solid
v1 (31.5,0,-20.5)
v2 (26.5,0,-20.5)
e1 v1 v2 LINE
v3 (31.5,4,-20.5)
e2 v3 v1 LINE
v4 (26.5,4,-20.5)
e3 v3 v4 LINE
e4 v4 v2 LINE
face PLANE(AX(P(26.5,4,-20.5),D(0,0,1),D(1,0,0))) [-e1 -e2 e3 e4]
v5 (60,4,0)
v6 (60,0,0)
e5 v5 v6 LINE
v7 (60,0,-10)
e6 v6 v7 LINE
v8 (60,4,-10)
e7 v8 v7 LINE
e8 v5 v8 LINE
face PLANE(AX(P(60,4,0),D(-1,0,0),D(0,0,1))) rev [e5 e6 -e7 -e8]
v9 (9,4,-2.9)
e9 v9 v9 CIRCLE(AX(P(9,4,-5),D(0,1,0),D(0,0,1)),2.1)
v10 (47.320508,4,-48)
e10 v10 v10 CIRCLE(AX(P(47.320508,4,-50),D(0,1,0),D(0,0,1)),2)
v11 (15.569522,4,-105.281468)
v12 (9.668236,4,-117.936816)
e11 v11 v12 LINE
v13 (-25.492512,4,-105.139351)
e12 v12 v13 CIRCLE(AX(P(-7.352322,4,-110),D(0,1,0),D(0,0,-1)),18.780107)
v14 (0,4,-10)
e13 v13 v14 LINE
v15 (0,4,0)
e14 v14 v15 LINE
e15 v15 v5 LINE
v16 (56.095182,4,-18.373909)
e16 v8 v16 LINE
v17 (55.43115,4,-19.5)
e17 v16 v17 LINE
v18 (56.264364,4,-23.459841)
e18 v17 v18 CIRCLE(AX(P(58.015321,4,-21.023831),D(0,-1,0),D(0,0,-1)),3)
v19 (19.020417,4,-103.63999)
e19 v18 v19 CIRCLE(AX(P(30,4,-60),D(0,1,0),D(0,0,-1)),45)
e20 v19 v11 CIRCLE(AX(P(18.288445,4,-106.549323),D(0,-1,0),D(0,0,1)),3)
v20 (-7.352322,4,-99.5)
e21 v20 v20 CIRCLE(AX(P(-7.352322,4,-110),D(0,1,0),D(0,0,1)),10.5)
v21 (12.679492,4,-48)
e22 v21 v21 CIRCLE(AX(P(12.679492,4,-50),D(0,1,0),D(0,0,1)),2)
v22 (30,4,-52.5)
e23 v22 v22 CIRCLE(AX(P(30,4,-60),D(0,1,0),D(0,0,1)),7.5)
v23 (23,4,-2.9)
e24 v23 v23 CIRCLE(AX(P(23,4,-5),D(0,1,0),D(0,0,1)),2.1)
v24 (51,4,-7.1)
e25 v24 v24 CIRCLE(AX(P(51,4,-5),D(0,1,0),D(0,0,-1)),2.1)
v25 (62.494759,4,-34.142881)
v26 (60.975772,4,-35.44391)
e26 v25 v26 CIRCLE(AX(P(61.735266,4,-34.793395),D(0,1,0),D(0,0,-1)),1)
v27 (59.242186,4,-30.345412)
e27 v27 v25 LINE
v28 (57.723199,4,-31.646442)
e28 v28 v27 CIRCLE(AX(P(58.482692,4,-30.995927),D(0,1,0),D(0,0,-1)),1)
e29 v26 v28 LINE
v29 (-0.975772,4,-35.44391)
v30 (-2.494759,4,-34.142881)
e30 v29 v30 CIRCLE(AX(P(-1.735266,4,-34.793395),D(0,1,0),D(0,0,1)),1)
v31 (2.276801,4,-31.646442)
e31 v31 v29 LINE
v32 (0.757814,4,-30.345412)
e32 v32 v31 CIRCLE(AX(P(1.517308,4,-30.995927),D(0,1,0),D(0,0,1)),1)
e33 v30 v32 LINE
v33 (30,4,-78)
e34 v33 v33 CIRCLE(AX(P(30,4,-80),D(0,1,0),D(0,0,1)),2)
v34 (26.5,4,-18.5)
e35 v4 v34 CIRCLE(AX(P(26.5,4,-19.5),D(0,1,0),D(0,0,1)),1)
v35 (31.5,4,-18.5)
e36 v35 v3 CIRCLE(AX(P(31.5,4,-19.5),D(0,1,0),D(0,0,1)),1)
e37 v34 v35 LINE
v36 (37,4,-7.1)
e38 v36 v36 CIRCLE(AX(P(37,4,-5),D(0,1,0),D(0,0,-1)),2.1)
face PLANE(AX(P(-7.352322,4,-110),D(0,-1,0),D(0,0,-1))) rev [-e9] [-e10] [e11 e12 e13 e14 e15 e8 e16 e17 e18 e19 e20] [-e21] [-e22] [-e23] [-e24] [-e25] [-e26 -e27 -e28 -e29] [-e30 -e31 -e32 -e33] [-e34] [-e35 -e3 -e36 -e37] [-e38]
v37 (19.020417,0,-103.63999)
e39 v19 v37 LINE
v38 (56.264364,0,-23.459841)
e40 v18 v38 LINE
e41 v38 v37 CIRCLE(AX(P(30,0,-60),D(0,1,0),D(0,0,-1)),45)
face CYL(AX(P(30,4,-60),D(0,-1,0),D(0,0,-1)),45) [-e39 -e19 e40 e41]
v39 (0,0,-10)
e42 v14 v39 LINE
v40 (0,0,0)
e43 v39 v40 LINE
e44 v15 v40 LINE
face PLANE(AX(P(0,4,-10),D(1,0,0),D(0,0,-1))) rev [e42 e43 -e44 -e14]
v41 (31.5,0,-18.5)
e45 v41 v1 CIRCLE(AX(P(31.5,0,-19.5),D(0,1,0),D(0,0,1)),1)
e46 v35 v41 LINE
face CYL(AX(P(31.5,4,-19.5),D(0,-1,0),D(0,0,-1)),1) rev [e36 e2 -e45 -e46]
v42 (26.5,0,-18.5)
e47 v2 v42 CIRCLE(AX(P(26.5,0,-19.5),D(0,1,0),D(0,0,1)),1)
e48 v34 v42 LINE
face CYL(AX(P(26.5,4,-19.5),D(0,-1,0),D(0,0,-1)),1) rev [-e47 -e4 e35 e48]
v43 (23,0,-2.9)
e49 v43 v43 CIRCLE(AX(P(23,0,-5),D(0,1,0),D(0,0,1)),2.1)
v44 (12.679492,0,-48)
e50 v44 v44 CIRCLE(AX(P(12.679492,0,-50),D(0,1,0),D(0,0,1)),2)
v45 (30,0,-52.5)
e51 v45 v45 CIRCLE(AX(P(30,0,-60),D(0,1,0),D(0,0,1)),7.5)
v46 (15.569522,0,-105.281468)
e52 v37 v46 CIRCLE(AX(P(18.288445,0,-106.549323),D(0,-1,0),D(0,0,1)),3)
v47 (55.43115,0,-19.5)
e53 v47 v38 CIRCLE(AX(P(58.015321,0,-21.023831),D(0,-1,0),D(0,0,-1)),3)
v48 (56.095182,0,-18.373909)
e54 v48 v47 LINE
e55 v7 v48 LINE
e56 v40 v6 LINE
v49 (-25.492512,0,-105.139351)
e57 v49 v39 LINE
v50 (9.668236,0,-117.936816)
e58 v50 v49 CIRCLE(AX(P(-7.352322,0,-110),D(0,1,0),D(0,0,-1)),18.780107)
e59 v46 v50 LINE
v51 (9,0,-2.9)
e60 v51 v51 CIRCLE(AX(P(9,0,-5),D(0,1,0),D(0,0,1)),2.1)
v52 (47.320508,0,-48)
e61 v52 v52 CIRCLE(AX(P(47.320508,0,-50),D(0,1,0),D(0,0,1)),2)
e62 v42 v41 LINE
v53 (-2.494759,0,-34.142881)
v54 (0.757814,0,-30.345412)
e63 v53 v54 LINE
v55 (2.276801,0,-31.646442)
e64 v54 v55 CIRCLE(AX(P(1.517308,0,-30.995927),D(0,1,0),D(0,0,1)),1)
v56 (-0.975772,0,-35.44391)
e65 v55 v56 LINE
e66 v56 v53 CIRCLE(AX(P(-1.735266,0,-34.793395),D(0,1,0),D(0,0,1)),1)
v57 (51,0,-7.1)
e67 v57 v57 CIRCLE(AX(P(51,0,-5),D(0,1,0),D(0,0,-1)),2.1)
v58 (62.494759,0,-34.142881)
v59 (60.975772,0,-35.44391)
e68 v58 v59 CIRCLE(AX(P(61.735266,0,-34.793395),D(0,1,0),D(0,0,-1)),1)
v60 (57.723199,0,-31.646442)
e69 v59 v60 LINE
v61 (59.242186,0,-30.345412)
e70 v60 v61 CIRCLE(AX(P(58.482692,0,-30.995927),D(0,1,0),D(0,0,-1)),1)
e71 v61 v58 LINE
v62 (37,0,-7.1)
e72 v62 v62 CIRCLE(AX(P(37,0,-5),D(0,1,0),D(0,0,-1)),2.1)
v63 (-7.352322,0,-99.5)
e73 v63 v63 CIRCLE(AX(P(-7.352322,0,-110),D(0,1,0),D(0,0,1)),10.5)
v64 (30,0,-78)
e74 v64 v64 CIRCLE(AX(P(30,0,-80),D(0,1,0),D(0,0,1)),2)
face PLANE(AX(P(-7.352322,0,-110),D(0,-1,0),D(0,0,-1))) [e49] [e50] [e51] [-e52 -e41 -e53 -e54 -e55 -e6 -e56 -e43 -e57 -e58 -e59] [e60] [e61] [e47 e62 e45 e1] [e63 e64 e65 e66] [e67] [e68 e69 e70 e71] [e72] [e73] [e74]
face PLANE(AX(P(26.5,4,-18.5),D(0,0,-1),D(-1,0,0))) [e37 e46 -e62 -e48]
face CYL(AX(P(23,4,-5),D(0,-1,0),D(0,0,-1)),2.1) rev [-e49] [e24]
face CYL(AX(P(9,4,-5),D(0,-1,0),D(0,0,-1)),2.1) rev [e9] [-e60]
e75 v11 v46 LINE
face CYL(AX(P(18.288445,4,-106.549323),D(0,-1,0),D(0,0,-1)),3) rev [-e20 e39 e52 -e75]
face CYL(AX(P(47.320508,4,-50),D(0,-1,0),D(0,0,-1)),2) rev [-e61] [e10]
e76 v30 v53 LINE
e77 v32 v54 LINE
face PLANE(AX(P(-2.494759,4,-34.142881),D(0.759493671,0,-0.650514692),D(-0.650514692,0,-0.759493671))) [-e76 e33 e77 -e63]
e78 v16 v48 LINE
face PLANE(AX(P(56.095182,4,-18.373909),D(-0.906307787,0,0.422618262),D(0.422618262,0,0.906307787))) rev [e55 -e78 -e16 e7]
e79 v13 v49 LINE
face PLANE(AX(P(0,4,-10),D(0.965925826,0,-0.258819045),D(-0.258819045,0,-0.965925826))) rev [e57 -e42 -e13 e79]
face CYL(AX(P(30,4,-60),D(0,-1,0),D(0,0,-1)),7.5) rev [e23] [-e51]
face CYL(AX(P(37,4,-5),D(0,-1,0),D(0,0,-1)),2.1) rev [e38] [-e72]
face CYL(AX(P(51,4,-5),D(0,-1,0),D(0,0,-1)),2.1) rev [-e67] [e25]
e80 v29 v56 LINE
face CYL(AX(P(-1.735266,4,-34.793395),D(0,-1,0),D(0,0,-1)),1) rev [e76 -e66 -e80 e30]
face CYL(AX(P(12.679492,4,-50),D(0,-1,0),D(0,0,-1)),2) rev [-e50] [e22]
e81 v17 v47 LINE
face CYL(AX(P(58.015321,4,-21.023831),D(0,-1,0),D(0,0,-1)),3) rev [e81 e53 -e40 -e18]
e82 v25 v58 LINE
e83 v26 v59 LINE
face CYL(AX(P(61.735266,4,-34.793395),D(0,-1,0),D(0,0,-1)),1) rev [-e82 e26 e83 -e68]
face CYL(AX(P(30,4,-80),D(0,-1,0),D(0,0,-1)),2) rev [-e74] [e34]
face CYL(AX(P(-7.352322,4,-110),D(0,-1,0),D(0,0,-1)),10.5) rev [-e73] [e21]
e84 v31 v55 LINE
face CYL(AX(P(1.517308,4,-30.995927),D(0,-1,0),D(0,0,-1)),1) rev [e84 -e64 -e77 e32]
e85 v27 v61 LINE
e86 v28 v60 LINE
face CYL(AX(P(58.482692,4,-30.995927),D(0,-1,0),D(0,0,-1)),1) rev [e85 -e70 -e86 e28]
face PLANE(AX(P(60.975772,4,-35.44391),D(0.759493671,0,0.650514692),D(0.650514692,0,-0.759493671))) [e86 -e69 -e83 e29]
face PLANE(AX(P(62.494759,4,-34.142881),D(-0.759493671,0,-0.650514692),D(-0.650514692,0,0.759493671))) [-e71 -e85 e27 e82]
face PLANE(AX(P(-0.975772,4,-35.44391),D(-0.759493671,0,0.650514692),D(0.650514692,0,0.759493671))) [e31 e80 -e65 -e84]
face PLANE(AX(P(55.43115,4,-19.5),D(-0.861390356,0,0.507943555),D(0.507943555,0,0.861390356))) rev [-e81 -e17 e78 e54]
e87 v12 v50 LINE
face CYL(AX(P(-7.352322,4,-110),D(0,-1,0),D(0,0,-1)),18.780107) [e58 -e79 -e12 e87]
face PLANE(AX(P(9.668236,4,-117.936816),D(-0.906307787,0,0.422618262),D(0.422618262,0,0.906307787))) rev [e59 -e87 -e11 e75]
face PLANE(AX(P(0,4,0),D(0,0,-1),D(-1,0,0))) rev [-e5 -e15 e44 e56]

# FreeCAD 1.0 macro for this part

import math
import FreeCAD as App
import Part
import Sketcher
from FreeCAD import Vector
Q = App.Units.Quantity

doc = App.newDocument("Part")
body = doc.addObject("PartDesign::Body", "Body")

sketch1 = body.newObject("Sketcher::SketchObject", "Sketch")
sketch1.AttachmentSupport = (doc.getObject("XZ_Plane"), [""])
sketch1.MapMode = "FlatFace"
sketch1.addGeometry([
    Part.LineSegment(Vector(0, -10, 0), Vector(0, 0, 0)),
    Part.LineSegment(Vector(0, 0, 0), Vector(60, 0, 0)),
    Part.LineSegment(Vector(60, 0, 0), Vector(60, -10, 0)),
    Part.LineSegment(Vector(60, -10, 0), Vector(56.1, -18.4, 0)),
    Part.LineSegment(Vector(56.1, -18.4, 0), Vector(55.4, -19.5, 0)),
    Part.ArcOfCircle(Part.Circle(Vector(58, -21, 0), Vector(0, 0, 1), 3), math.radians(149), math.radians(234)),
    Part.ArcOfCircle(Part.Circle(Vector(30, -60, 0), Vector(0, 0, 1), 45), math.radians(-104), math.radians(54)),
    Part.ArcOfCircle(Part.Circle(Vector(18.3, -106.5, 0), Vector(0, 0, 1), 3), math.radians(76), math.radians(155)),
    Part.LineSegment(Vector(15.6, -105.3, 0), Vector(9.7, -117.9, 0)),
    Part.ArcOfCircle(Part.Circle(Vector(-7.4, -110, 0), Vector(0, 0, 1), 18.8), math.radians(165), math.radians(335)),
    Part.LineSegment(Vector(-25.5, -105.1, 0), Vector(0, -10, 0)),
    Part.Circle(Vector(9, -5, 0), Vector(0, 0, 1), 2.1),
    Part.ArcOfCircle(Part.Circle(Vector(-1.7, -34.8, 0), Vector(0, 0, 1), 1), math.radians(139), math.radians(319)),
    Part.LineSegment(Vector(-1, -35.4, 0), Vector(2.3, -31.6, 0)),
    Part.ArcOfCircle(Part.Circle(Vector(1.5, -31, 0), Vector(0, 0, 1), 1), math.radians(-41), math.radians(139)),
    Part.LineSegment(Vector(0.8, -30.3, 0), Vector(-2.5, -34.1, 0)),
    Part.Circle(Vector(12.7, -50, 0), Vector(0, 0, 1), 2),
    Part.Circle(Vector(23, -5, 0), Vector(0, 0, 1), 2.1),
    Part.Circle(Vector(37, -5, 0), Vector(0, 0, 1), 2.1),
    Part.ArcOfCircle(Part.Circle(Vector(26.5, -19.5, 0), Vector(0, 0, 1), 1), math.radians(90), math.radians(270)),
    Part.LineSegment(Vector(26.5, -20.5, 0), Vector(31.5, -20.5, 0)),
    Part.ArcOfCircle(Part.Circle(Vector(31.5, -19.5, 0), Vector(0, 0, 1), 1), math.radians(-90), math.radians(90)),
    Part.LineSegment(Vector(31.5, -18.5, 0), Vector(26.5, -18.5, 0)),
    Part.Circle(Vector(51, -5, 0), Vector(0, 0, 1), 2.1),
    Part.Circle(Vector(30, -60, 0), Vector(0, 0, 1), 7.5),
    Part.LineSegment(Vector(57.7, -31.6, 0), Vector(61, -35.4, 0)),
    Part.ArcOfCircle(Part.Circle(Vector(61.7, -34.8, 0), Vector(0, 0, 1), 1), math.radians(-139), math.radians(41)),
    Part.LineSegment(Vector(62.5, -34.1, 0), Vector(59.2, -30.3, 0)),
    Part.ArcOfCircle(Part.Circle(Vector(58.5, -31, 0), Vector(0, 0, 1), 1), math.radians(41), math.radians(221)),
    Part.Circle(Vector(47.3, -50, 0), Vector(0, 0, 1), 2),
    Part.Circle(Vector(-7.4, -110, 0), Vector(0, 0, 1), 10.5),
    Part.Circle(Vector(30, -80, 0), Vector(0, 0, 1), 2),
], False)
sketch1.addConstraint([
    Sketcher.Constraint("Coincident", 0, 2, 1, 1),
    Sketcher.Constraint("Coincident", 1, 2, 2, 1),
    Sketcher.Constraint("Coincident", 2, 2, 3, 1),
    Sketcher.Constraint("Coincident", 3, 2, 4, 1),
    Sketcher.Constraint("Tangent", 4, 2, 5, 1),
    Sketcher.Constraint("Tangent", 5, 2, 6, 2),
    Sketcher.Constraint("Tangent", 6, 1, 7, 1),
    Sketcher.Constraint("Tangent", 7, 2, 8, 1),
    Sketcher.Constraint("Tangent", 8, 2, 9, 2),
    Sketcher.Constraint("Tangent", 9, 1, 10, 1),
    Sketcher.Constraint("Coincident", 10, 2, 0, 1),
    Sketcher.Constraint("Tangent", 12, 2, 13, 1),
    Sketcher.Constraint("Tangent", 13, 2, 14, 1),
    Sketcher.Constraint("Tangent", 14, 2, 15, 1),
    Sketcher.Constraint("Tangent", 15, 2, 12, 1),
    Sketcher.Constraint("Tangent", 19, 2, 20, 1),
    Sketcher.Constraint("Tangent", 20, 2, 21, 1),
    Sketcher.Constraint("Tangent", 21, 2, 22, 1),
    Sketcher.Constraint("Tangent", 22, 2, 19, 1),
    Sketcher.Constraint("Tangent", 25, 2, 26, 1),
    Sketcher.Constraint("Tangent", 26, 2, 27, 1),
    Sketcher.Constraint("Tangent", 27, 2, 28, 1),
    Sketcher.Constraint("Tangent", 28, 2, 25, 1),
    Sketcher.Constraint("Vertical", 0),
    Sketcher.Constraint("Horizontal", 1),
    Sketcher.Constraint("Vertical", 2),
    Sketcher.Constraint("Horizontal", 20),
    Sketcher.Constraint("Horizontal", 22),
    Sketcher.Constraint("Coincident", 0, 2, -1, 1),
    Sketcher.Constraint("Coincident", 24, 3, 6, 3),
    Sketcher.Constraint("Coincident", 30, 3, 9, 3),
    Sketcher.Constraint("Equal", 5, 7),
    Sketcher.Constraint("Equal", 12, 14),
    Sketcher.Constraint("Equal", 11, 17),
    Sketcher.Constraint("Equal", 17, 18),
    Sketcher.Constraint("Equal", 14, 19),
    Sketcher.Constraint("Equal", 18, 23),
    Sketcher.Constraint("Equal", 21, 26),
    Sketcher.Constraint("Equal", 26, 28),
    Sketcher.Constraint("Equal", 16, 29),
    Sketcher.Constraint("Equal", 29, 31),
    Sketcher.Constraint("Parallel", 3, 8),
    Sketcher.Constraint("Horizontal", 11, 3, 17, 3),
    Sketcher.Constraint("Horizontal", 17, 3, 18, 3),
    Sketcher.Constraint("Horizontal", 18, 3, 23, 3),
    Sketcher.Constraint("Horizontal", 12, 3, 26, 3),
    Sketcher.Constraint("Horizontal", 14, 3, 28, 3),
    Sketcher.Constraint("Horizontal", 16, 3, 29, 3),
    Sketcher.Constraint("Horizontal", 21, 3, 4, 2),
    Sketcher.Constraint("Horizontal", 2, 2, 10, 2),
    Sketcher.Constraint("Horizontal", 12, 2, 25, 2),
    Sketcher.Constraint("Vertical", 24, 3, 31, 3),
    Sketcher.Constraint("Diameter", 16, 4.0),
    Sketcher.Constraint("Diameter", 24, 15.0),
    Sketcher.Constraint("Diameter", 30, 21.0),
    Sketcher.Constraint("Radius", 5, 3.0),
    Sketcher.Constraint("Radius", 6, 45.0),
    Sketcher.Constraint("Radius", 12, 1.0),
    Sketcher.Constraint("Diameter", 11, 4.2),
    Sketcher.Constraint("DistanceX", 1, 1, 1, 2, 60.0),
    Sketcher.Constraint("DistanceX", 20, 1, 20, 2, 5.0),
    Sketcher.Constraint("DistanceY", 0, 1, 0, 2, 10.0),
    Sketcher.Constraint("Angle", 3, Q("-115 deg")),
    Sketcher.Constraint("Angle", 10, Q("75 deg")),
    Sketcher.Constraint("Distance", 13, 5.0),
    Sketcher.Constraint("DistanceX", -1, 1, 6, 3, 30.0),
    Sketcher.Constraint("DistanceY", 6, 3, -1, 1, 60.0),
    Sketcher.Constraint("DistanceY", 9, 3, -1, 1, 110.0),
    Sketcher.Constraint("DistanceX", -1, 1, 11, 3, 9.0),
    Sketcher.Constraint("DistanceY", 11, 3, -1, 1, 5.0),
    Sketcher.Constraint("DistanceY", 16, 3, -1, 1, 50.0),
    Sketcher.Constraint("DistanceX", -1, 1, 17, 3, 23.0),
    Sketcher.Constraint("DistanceX", -1, 1, 18, 3, 37.0),
    Sketcher.Constraint("DistanceX", -1, 1, 23, 3, 51.0),
    Sketcher.Constraint("DistanceY", 31, 3, -1, 1, 80.0),
    Sketcher.Constraint("DistanceX", -1, 1, 19, 3, 26.5),
    Sketcher.Constraint("DistanceY", 19, 3, -1, 1, 19.5),
    Sketcher.Constraint("Radius", 9, 18.780107),
    Sketcher.Constraint("DistanceX", -1, 1, 13, 2, 2.276801),
    Sketcher.Constraint("DistanceX", -1, 1, 28, 2, 57.723199),
    Sketcher.Constraint("DistanceX", -1, 1, 5, 3, 58.015321),
    Sketcher.Constraint("DistanceX", -1, 1, 16, 3, 12.679492),
    Sketcher.Constraint("DistanceX", -1, 1, 29, 3, 47.320508),
    Sketcher.Constraint("DistanceY", 12, 2, -1, 1, 35.44391),
    Sketcher.Constraint("DistanceY", 13, 2, -1, 1, 31.646442),
])
pad1 = body.newObject("PartDesign::Pad", "Pad")
pad1.Profile = sketch1
pad1.Length = 4
pad1.Reversed = True

doc.recompute()
